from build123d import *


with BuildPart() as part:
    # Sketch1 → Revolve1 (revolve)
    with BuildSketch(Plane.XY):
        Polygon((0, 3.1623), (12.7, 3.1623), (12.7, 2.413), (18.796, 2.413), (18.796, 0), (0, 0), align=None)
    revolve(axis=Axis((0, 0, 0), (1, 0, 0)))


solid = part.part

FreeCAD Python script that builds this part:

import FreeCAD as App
import Part
import Sketcher
from FreeCAD import Vector
Q = App.Units.Quantity


def add_polygon(sketch, points):
    """Adds a closed chain of lines whose ends are joined by coincident constraints."""
    first, n = sketch.GeometryCount, len(points)
    for a, b in zip(points, points[1:] + points[:1]):
        sketch.addGeometry(Part.LineSegment(App.Vector(*a, 0), App.Vector(*b, 0)), False)
    for i in range(n):
        sketch.addConstraint(Sketcher.Constraint("Coincident", first + i, 2, first + (i + 1) % n, 1))

doc = App.newDocument("Part")
body = doc.addObject("PartDesign::Body", "Body")

sketch1 = body.newObject("Sketcher::SketchObject", "Sketch")
sketch1.AttachmentSupport = (doc.getObject("XY_Plane"), [""])
sketch1.MapMode = "FlatFace"
add_polygon(sketch1, [(12.7, 3.2), (0, 3.2), (0, 0), (18.8, 0), (18.8, 2.4), (12.7, 2.4)])
sketch1.addConstraint([
    Sketcher.Constraint("Horizontal", 0),
    Sketcher.Constraint("Vertical", 1),
    Sketcher.Constraint("Horizontal", 2),
    Sketcher.Constraint("Vertical", 3),
    Sketcher.Constraint("Horizontal", 4),
    Sketcher.Constraint("Vertical", 5),
    Sketcher.Constraint("Coincident", 1, 2, -1, 1),
    Sketcher.Constraint("DistanceX", 0, 2, 0, 1, Q("0.5 in")),
    Sketcher.Constraint("DistanceX", 2, 1, 2, 2, Q("0.74 in")),
    Sketcher.Constraint("DistanceY", 3, 1, 3, 2, Q("0.095 in")),
    Sketcher.Constraint("DistanceY", 1, 2, 1, 1, Q("0.1245 in")),
])
revolution = body.newObject("PartDesign::Revolution", "Revolution")
revolution.Profile = sketch1
revolution.ReferenceAxis = (sketch1, ["H_Axis"])
revolution.Angle = 360

doc.recompute()
